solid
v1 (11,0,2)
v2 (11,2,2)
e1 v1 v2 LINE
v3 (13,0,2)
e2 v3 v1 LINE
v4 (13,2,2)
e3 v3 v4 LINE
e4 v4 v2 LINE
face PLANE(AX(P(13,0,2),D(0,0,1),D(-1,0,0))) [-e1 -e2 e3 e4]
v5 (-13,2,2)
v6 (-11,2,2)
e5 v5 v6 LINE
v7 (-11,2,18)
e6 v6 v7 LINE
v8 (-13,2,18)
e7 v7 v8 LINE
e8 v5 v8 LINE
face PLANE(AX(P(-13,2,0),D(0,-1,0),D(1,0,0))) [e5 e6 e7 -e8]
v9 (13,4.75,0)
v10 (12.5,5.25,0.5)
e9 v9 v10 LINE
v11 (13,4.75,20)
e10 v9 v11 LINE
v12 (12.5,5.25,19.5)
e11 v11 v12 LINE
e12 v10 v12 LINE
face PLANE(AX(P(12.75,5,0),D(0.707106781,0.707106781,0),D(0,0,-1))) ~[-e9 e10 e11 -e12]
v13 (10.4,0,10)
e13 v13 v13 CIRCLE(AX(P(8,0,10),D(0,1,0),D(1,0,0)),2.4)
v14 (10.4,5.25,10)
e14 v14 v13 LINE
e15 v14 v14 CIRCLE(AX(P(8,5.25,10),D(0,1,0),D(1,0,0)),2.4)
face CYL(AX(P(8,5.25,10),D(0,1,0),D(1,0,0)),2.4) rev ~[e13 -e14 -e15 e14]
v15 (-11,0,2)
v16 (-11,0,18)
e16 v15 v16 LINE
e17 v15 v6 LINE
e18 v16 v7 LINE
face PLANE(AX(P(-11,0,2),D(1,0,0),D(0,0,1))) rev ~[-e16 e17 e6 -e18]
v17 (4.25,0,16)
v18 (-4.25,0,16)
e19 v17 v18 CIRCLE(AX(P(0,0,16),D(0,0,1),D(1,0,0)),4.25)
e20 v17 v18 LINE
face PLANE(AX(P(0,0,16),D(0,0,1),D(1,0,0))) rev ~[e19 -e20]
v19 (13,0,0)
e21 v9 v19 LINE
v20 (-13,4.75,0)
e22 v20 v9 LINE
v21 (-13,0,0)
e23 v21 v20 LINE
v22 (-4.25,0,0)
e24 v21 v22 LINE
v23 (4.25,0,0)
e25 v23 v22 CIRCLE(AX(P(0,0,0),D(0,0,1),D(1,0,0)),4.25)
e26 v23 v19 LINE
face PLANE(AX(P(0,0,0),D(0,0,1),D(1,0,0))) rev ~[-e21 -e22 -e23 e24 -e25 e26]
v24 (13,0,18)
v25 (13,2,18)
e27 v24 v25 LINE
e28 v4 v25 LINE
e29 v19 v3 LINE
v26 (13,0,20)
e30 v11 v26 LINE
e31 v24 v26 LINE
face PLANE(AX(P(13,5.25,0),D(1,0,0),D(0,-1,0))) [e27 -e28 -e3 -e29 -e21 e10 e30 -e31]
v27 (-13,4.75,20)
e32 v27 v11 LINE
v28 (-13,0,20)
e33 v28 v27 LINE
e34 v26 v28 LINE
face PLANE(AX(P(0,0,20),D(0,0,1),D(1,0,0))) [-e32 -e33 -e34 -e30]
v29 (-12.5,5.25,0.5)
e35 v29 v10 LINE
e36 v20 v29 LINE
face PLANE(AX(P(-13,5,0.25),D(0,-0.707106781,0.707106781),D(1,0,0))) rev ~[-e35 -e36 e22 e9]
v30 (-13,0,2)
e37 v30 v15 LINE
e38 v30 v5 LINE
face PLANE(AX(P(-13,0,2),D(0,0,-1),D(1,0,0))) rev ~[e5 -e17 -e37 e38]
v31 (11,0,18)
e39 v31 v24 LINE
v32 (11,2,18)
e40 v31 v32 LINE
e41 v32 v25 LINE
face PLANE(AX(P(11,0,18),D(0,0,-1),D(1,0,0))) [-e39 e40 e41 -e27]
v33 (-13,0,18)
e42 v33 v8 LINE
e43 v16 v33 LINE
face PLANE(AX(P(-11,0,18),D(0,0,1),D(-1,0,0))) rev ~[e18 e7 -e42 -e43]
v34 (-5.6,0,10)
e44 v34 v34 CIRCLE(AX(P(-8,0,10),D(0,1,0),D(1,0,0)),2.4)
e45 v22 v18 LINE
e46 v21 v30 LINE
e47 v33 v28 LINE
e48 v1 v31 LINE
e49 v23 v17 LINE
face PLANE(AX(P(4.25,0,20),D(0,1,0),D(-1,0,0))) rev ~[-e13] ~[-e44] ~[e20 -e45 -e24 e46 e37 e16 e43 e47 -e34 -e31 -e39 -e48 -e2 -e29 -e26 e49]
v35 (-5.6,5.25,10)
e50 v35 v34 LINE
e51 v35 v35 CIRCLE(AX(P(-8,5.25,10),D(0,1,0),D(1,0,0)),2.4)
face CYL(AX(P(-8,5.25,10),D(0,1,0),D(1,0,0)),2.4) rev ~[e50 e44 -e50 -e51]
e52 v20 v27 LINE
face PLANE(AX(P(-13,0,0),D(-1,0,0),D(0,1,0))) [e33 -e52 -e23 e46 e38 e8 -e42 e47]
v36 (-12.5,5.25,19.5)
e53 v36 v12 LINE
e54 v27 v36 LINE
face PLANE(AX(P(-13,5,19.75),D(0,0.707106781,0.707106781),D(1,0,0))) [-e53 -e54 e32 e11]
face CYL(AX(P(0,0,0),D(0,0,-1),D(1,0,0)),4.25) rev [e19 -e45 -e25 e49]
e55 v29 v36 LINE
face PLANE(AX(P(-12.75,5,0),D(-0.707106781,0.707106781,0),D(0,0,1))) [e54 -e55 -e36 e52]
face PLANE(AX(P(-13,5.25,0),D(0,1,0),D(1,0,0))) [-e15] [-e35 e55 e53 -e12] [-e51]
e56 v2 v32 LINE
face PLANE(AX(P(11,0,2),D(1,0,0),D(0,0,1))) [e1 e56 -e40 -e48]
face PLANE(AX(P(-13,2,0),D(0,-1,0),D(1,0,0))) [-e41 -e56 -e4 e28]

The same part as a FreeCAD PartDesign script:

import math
import FreeCAD as App
import Part
import Sketcher

V = App.Vector


def edges_at(feature, points):
    """Names of the edges that pass closest to the given points."""
    edges = feature.Shape.Edges
    near = lambda p: min(range(len(edges)), key=lambda i: edges[i].distToShape(Part.Vertex(*p))[0])
    return sorted({f"Edge{near(p) + 1}" for p in points})

doc = App.newDocument("Part")
params = doc.addObject("Spreadsheet::Sheet", "Params")
for row, (alias, value) in enumerate([
    ("sketch1_radius", "4.25 mm"),
    ("sketch1_height", "5.25 mm"),
    ("pad1_length", "20 mm"),
    ("sketch2_diameter", "4.8 mm"),
    ("sketch3_width", "2 mm"),
    ("sketch3_height", "16 mm"),
    ("pocket2_length", "2 mm"),
    ("chamfer_size", "0.5 mm"),
    ("sketch4_radius", "4.25 mm"),
    ("pad2_length", "4 mm"),
], start=1):
    params.set(f"A{row}", alias)
    params.set(f"B{row}", "=" + value)
    params.setAlias(f"B{row}", alias)

body = doc.addObject("PartDesign::Body", "Body")

# Sketch on XY plane
sketch1 = body.newObject("Sketcher::SketchObject", "Sketch")
sketch1.AttachmentSupport = (doc.getObject("XY_Plane"), [""])
sketch1.MapMode = "FlatFace"
sketch1.addGeometry([
    Part.ArcOfCircle(Part.Circle(V(0, 0, 0), V(0, 0, 1), 4.2), math.radians(0), math.radians(180)),  # 0
    Part.LineSegment(V(4.2, 0, 0), V(13, 0, 0)),  # 1
    Part.LineSegment(V(13, 0, 0), V(13, 5.2, 0)),  # 2
    Part.LineSegment(V(13, 5.2, 0), V(-13, 5.2, 0)),  # 3
    Part.LineSegment(V(-13, 5.2, 0), V(-13, 0, 0)),  # 4
    Part.LineSegment(V(-13, 0, 0), V(-4.2, 0, 0)),  # 5
], False)
sketch1.addConstraint([
    Sketcher.Constraint("Coincident", 0, 1, 1, 1),
    Sketcher.Constraint("Coincident", 1, 2, 2, 1),
    Sketcher.Constraint("Coincident", 2, 2, 3, 1),
    Sketcher.Constraint("Coincident", 3, 2, 4, 1),
    Sketcher.Constraint("Coincident", 4, 2, 5, 1),
    Sketcher.Constraint("Coincident", 5, 2, 0, 2),
    Sketcher.Constraint("Horizontal", 1),
    Sketcher.Constraint("Vertical", 2),
    Sketcher.Constraint("Horizontal", 3),
    Sketcher.Constraint("Vertical", 4),
    Sketcher.Constraint("Horizontal", 5),
    Sketcher.Constraint("Coincident", 0, 3, -1, 1),
    Sketcher.Constraint("Symmetric", 1, 2, 4, 2, -1, 1),
    Sketcher.Constraint("PointOnObject", 0, 1, -1),
    Sketcher.Constraint("Radius", 0, 4.25),
    Sketcher.Constraint("DistanceX", -1, 1, 1, 2, 13.0),
    Sketcher.Constraint("DistanceY", 2, 1, 2, 2, 5.25),
])
sketch1.setExpression("Constraints[14]", "Params.sketch1_radius")
sketch1.setExpression("Constraints[16]", "Params.sketch1_height")
pad1 = body.newObject("PartDesign::Pad", "Pad")
pad1.Profile = sketch1
pad1.setExpression("Length", "Params.pad1_length")

# Sketch on XZ plane
sketch2 = body.newObject("Sketcher::SketchObject", "Sketch001")
sketch2.AttachmentSupport = (doc.getObject("XZ_Plane"), [""])
sketch2.MapMode = "FlatFace"
sketch2.AttachmentOffset = App.Placement(V(0, 0, -5.25), App.Rotation())
sketch2.addGeometry([
    Part.Circle(V(-8, 10, 0), V(0, 0, 1), 2.4),
    Part.Circle(V(8, 10, 0), V(0, 0, 1), 2.4),
], False)
sketch2.addConstraint([
    Sketcher.Constraint("Equal", 0, 1),
    Sketcher.Constraint("Symmetric", 0, 3, 1, 3, -2),
    Sketcher.Constraint("Diameter", 0, 4.8),
    Sketcher.Constraint("DistanceX", 0, 3, -1, 1, 8.0),
    Sketcher.Constraint("DistanceY", -1, 1, 0, 3, 10.0),
])
sketch2.setExpression("Constraints[2]", "Params.sketch2_diameter")
pocket1 = body.newObject("PartDesign::Pocket", "Pocket")
pocket1.Profile = sketch2
pocket1.Type = "ThroughAll"
pocket1.Reversed = True

# Sketch on XZ plane
sketch3 = body.newObject("Sketcher::SketchObject", "Sketch002")
sketch3.AttachmentSupport = (doc.getObject("XZ_Plane"), [""])
sketch3.MapMode = "FlatFace"
sketch3.addGeometry([
    Part.LineSegment(V(-13, 18, 0), V(-13, 2, 0)),  # 0
    Part.LineSegment(V(-13, 2, 0), V(-11, 2, 0)),  # 1
    Part.LineSegment(V(-11, 2, 0), V(-11, 18, 0)),  # 2
    Part.LineSegment(V(-11, 18, 0), V(-13, 18, 0)),  # 3
    Part.LineSegment(V(11, 2, 0), V(13, 2, 0)),  # 4
    Part.LineSegment(V(13, 2, 0), V(13, 18, 0)),  # 5
    Part.LineSegment(V(13, 18, 0), V(11, 18, 0)),  # 6
    Part.LineSegment(V(11, 18, 0), V(11, 2, 0)),  # 7
], False)
sketch3.addConstraint([
    Sketcher.Constraint("Coincident", 0, 2, 1, 1),
    Sketcher.Constraint("Coincident", 1, 2, 2, 1),
    Sketcher.Constraint("Coincident", 2, 2, 3, 1),
    Sketcher.Constraint("Coincident", 3, 2, 0, 1),
    Sketcher.Constraint("Coincident", 4, 2, 5, 1),
    Sketcher.Constraint("Coincident", 5, 2, 6, 1),
    Sketcher.Constraint("Coincident", 6, 2, 7, 1),
    Sketcher.Constraint("Coincident", 7, 2, 4, 1),
    Sketcher.Constraint("Vertical", 0),
    Sketcher.Constraint("Horizontal", 1),
    Sketcher.Constraint("Vertical", 2),
    Sketcher.Constraint("Horizontal", 3),
    Sketcher.Constraint("Horizontal", 4),
    Sketcher.Constraint("Vertical", 5),
    Sketcher.Constraint("Horizontal", 6),
    Sketcher.Constraint("Vertical", 7),
    Sketcher.Constraint("Symmetric", 0, 2, 4, 2, -2),
    Sketcher.Constraint("Symmetric", 2, 2, 6, 2, -2),
    Sketcher.Constraint("DistanceX", 1, 1, 1, 2, 2.0),
    Sketcher.Constraint("DistanceY", -1, 1, 0, 2, 2.0),
    Sketcher.Constraint("DistanceY", 0, 2, 0, 1, 16.0),
    Sketcher.Constraint("DistanceX", 0, 2, -1, 1, 13.0),
])
sketch3.setExpression("Constraints[18]", "Params.sketch3_width")
sketch3.setExpression("Constraints[20]", "Params.sketch3_height")
pocket2 = body.newObject("PartDesign::Pocket", "Pocket001")
pocket2.Profile = sketch3
pocket2.setExpression("Length", "Params.pocket2_length")
doc.recompute()

chamfer = body.newObject("PartDesign::Chamfer", "Chamfer")
chamfer.Base = (pocket2, edges_at(pocket2, [
    (13, 5.25, 10),
    (0, 5.25, 20),
    (-13, 5.25, 10),
    (0, 5.25, 0),
]))
chamfer.setExpression("Size", "Params.chamfer_size")

# Sketch on XY plane
sketch4 = body.newObject("Sketcher::SketchObject", "Sketch003")
sketch4.AttachmentSupport = (doc.getObject("XY_Plane"), [""])
sketch4.MapMode = "FlatFace"
sketch4.AttachmentOffset = App.Placement(V(0, 0, 20), App.Rotation())
sketch4.addGeometry([
    Part.LineSegment(V(-4.2, 0, 0), V(4.2, 0, 0)),
    Part.ArcOfCircle(Part.Circle(V(0, 0, 0), V(0, 0, 1), 4.2), math.radians(0), math.radians(180)),
], False)
sketch4.addConstraint([
    Sketcher.Constraint("Coincident", 0, 1, 1, 2),
    Sketcher.Constraint("Coincident", 1, 1, 0, 2),
    Sketcher.Constraint("Horizontal", 0),
    Sketcher.Constraint("Coincident", 1, 3, -1, 1),
    Sketcher.Constraint("PointOnObject", 0, 1, -1),
    Sketcher.Constraint("Radius", 1, 4.25),
])
sketch4.setExpression("Constraints[5]", "Params.sketch4_radius")
pad2 = body.newObject("PartDesign::Pad", "Pad001")
pad2.Profile = sketch4
pad2.setExpression("Length", "Params.pad2_length")
pad2.Reversed = True

doc.recompute()
